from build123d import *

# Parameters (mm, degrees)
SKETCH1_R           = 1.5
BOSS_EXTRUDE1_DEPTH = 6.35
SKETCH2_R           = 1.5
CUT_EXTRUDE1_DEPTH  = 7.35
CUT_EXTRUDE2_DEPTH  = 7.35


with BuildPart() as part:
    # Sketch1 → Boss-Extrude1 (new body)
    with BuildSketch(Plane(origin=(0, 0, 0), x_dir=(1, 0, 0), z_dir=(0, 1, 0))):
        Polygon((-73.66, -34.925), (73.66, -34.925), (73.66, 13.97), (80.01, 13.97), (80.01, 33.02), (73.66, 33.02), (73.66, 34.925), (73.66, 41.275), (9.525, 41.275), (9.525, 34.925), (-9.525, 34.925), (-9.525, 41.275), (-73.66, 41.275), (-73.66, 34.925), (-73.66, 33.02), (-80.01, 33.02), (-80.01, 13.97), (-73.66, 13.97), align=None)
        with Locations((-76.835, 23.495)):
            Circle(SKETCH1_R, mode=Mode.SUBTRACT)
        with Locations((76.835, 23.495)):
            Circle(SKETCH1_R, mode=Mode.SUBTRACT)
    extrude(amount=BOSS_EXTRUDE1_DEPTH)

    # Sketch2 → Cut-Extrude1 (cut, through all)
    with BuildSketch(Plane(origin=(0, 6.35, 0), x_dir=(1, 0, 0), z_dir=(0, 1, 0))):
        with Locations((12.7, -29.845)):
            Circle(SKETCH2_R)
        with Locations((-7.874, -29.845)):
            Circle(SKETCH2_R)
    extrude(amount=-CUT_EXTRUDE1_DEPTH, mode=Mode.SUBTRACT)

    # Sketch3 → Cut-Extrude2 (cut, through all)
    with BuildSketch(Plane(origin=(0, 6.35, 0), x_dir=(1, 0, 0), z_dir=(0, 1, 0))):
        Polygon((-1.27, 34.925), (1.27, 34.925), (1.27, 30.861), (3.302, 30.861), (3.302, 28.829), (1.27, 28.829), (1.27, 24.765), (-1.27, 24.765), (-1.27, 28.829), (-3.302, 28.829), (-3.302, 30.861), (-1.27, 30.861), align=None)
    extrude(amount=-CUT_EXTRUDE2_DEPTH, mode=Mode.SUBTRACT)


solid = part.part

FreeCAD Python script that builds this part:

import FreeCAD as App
import Part
import Sketcher
Q = App.Units.Quantity

doc = App.newDocument("Part")
body = doc.addObject("PartDesign::Body", "Body")

sketch1 = body.newObject("Sketcher::SketchObject", "Sketch")
sketch1.AttachmentSupport = (doc.getObject("XZ_Plane"), [""])
sketch1.MapMode = "FlatFace"
sketch1.addGeometry(Part.LineSegment(App.Vector(-73.7, 34.9, 0), App.Vector(73.7, 34.9, 0)), False)
sketch1.addGeometry(Part.LineSegment(App.Vector(73.7, 34.9, 0), App.Vector(73.7, -14, 0)), False)
sketch1.addGeometry(Part.LineSegment(App.Vector(73.7, -14, 0), App.Vector(80, -14, 0)), False)
sketch1.addGeometry(Part.LineSegment(App.Vector(80, -14, 0), App.Vector(80, -33, 0)), False)
sketch1.addGeometry(Part.LineSegment(App.Vector(80, -33, 0), App.Vector(73.7, -33, 0)), False)
sketch1.addGeometry(Part.LineSegment(App.Vector(73.7, -33, 0), App.Vector(73.7, -41.3, 0)), False)
sketch1.addGeometry(Part.LineSegment(App.Vector(73.7, -41.3, 0), App.Vector(9.5, -41.3, 0)), False)
sketch1.addGeometry(Part.LineSegment(App.Vector(9.5, -41.3, 0), App.Vector(9.5, -34.9, 0)), False)
sketch1.addGeometry(Part.LineSegment(App.Vector(9.5, -34.9, 0), App.Vector(-9.5, -34.9, 0)), False)
sketch1.addGeometry(Part.LineSegment(App.Vector(-9.5, -34.9, 0), App.Vector(-9.5, -41.3, 0)), False)
sketch1.addGeometry(Part.LineSegment(App.Vector(-9.5, -41.3, 0), App.Vector(-73.7, -41.3, 0)), False)
sketch1.addGeometry(Part.LineSegment(App.Vector(-73.7, -41.3, 0), App.Vector(-73.7, -33, 0)), False)
sketch1.addGeometry(Part.LineSegment(App.Vector(-73.7, -33, 0), App.Vector(-80, -33, 0)), False)
sketch1.addGeometry(Part.LineSegment(App.Vector(-80, -33, 0), App.Vector(-80, -14, 0)), False)
sketch1.addGeometry(Part.LineSegment(App.Vector(-80, -14, 0), App.Vector(-73.7, -14, 0)), False)
sketch1.addGeometry(Part.LineSegment(App.Vector(-73.7, -14, 0), App.Vector(-73.7, 34.9, 0)), False)
sketch1.addGeometry(Part.Circle(App.Vector(-76.8, -23.5, 0), App.Vector(0, 0, 1), 1.5), False)
sketch1.addGeometry(Part.Circle(App.Vector(76.8, -23.5, 0), App.Vector(0, 0, 1), 1.5), False)
sketch1.addConstraint(Sketcher.Constraint("Coincident", 0, 2, 1, 1))
sketch1.addConstraint(Sketcher.Constraint("Coincident", 1, 2, 2, 1))
sketch1.addConstraint(Sketcher.Constraint("Coincident", 2, 2, 3, 1))
sketch1.addConstraint(Sketcher.Constraint("Coincident", 3, 2, 4, 1))
sketch1.addConstraint(Sketcher.Constraint("Coincident", 4, 2, 5, 1))
sketch1.addConstraint(Sketcher.Constraint("Coincident", 5, 2, 6, 1))
sketch1.addConstraint(Sketcher.Constraint("Coincident", 6, 2, 7, 1))
sketch1.addConstraint(Sketcher.Constraint("Coincident", 7, 2, 8, 1))
sketch1.addConstraint(Sketcher.Constraint("Coincident", 8, 2, 9, 1))
sketch1.addConstraint(Sketcher.Constraint("Coincident", 9, 2, 10, 1))
sketch1.addConstraint(Sketcher.Constraint("Coincident", 10, 2, 11, 1))
sketch1.addConstraint(Sketcher.Constraint("Coincident", 11, 2, 12, 1))
sketch1.addConstraint(Sketcher.Constraint("Coincident", 12, 2, 13, 1))
sketch1.addConstraint(Sketcher.Constraint("Coincident", 13, 2, 14, 1))
sketch1.addConstraint(Sketcher.Constraint("Coincident", 14, 2, 15, 1))
sketch1.addConstraint(Sketcher.Constraint("Coincident", 15, 2, 0, 1))
sketch1.addConstraint(Sketcher.Constraint("Horizontal", 0))
sketch1.addConstraint(Sketcher.Constraint("Vertical", 1))
sketch1.addConstraint(Sketcher.Constraint("Horizontal", 2))
sketch1.addConstraint(Sketcher.Constraint("Vertical", 3))
sketch1.addConstraint(Sketcher.Constraint("Horizontal", 4))
sketch1.addConstraint(Sketcher.Constraint("Vertical", 5))
sketch1.addConstraint(Sketcher.Constraint("Horizontal", 6))
sketch1.addConstraint(Sketcher.Constraint("Vertical", 7))
sketch1.addConstraint(Sketcher.Constraint("Horizontal", 8))
sketch1.addConstraint(Sketcher.Constraint("Vertical", 9))
sketch1.addConstraint(Sketcher.Constraint("Horizontal", 10))
sketch1.addConstraint(Sketcher.Constraint("Vertical", 11))
sketch1.addConstraint(Sketcher.Constraint("Horizontal", 12))
sketch1.addConstraint(Sketcher.Constraint("Vertical", 13))
sketch1.addConstraint(Sketcher.Constraint("Horizontal", 14))
sketch1.addConstraint(Sketcher.Constraint("Vertical", 15))
sketch1.addConstraint(Sketcher.Constraint("Equal", 16, 17))
sketch1.addConstraint(Sketcher.Constraint("Symmetric", 16, 3, 17, 3, -2))
sketch1.addConstraint(Sketcher.Constraint("Symmetric", 6, 2, 9, 2, -2))
sketch1.addConstraint(Sketcher.Constraint("Symmetric", 4, 2, 11, 2, -2))
sketch1.addConstraint(Sketcher.Constraint("Symmetric", 2, 2, 13, 2, -2))
sketch1.addConstraint(Sketcher.Constraint("Vertical", 1, 2, 4, 2))
sketch1.addConstraint(Sketcher.Constraint("Vertical", 11, 2, 14, 2))
sketch1.addConstraint(Sketcher.Constraint("Equal", 8, 3))
sketch1.addConstraint(Sketcher.Constraint("Equal", 14, 7))
sketch1.addConstraint(Sketcher.Constraint("DistanceX", 0, 1, 0, 2, Q("5.8 in")))
sketch1.addConstraint(Sketcher.Constraint("DistanceX", 2, 1, 2, 2, Q("0.25 in")))
sketch1.addConstraint(Sketcher.Constraint("DistanceX", 8, 2, 8, 1, Q("0.75 in")))
sketch1.addConstraint(Sketcher.Constraint("DistanceY", 3, 2, -1, 1, Q("1.3 in")))
sketch1.addConstraint(Sketcher.Constraint("DistanceY", 17, 3, 0, 2, Q("2.3 in")))
sketch1.addConstraint(Sketcher.Constraint("DistanceY", 5, 2, 17, 3, Q("0.7 in")))
sketch1.addConstraint(Sketcher.Constraint("Diameter", 16, Q("3 mm")))
sketch1.addConstraint(Sketcher.Constraint("DistanceY", 1, 2, 1, 1, Q("1.925 in")))
sketch1.addConstraint(Sketcher.Constraint("DistanceX", 16, 3, 17, 3, Q("6.05 in")))
pad1 = body.newObject("PartDesign::Pad", "Pad")
pad1.Profile = sketch1
pad1.Length = Q("0.25 in")
pad1.Reversed = True

sketch2 = body.newObject("Sketcher::SketchObject", "Sketch001")
sketch2.AttachmentSupport = (doc.getObject("XZ_Plane"), [""])
sketch2.MapMode = "FlatFace"
sketch2.AttachmentOffset = App.Placement(App.Vector(0, 0, -0.25 * 25.4), App.Rotation())
sketch2.addGeometry(Part.Circle(App.Vector(12.7, 29.8, 0), App.Vector(0, 0, 1), 1.5), False)
sketch2.addGeometry(Part.Circle(App.Vector(-7.9, 29.8, 0), App.Vector(0, 0, 1), 1.5), False)
sketch2.addConstraint(Sketcher.Constraint("Equal", 0, 1))
sketch2.addConstraint(Sketcher.Constraint("Horizontal", 0, 3, 1, 3))
sketch2.addConstraint(Sketcher.Constraint("DistanceX", -1, 1, 0, 3, Q("0.5 in")))
sketch2.addConstraint(Sketcher.Constraint("Diameter", 0, Q("3 mm")))
sketch2.addConstraint(Sketcher.Constraint("DistanceX", 1, 3, -1, 1, Q("0.31 in")))
sketch2.addConstraint(Sketcher.Constraint("DistanceY", -1, 1, 0, 3, Q("1.175 in")))
pocket1 = body.newObject("PartDesign::Pocket", "Pocket")
pocket1.Profile = sketch2
pocket1.Type = "ThroughAll"
pocket1.Reversed = True

sketch3 = body.newObject("Sketcher::SketchObject", "Sketch002")
sketch3.AttachmentSupport = (doc.getObject("XZ_Plane"), [""])
sketch3.MapMode = "FlatFace"
sketch3.AttachmentOffset = App.Placement(App.Vector(0, 0, -0.25 * 25.4), App.Rotation())
sketch3.addGeometry(Part.LineSegment(App.Vector(1.3, -34.9, 0), App.Vector(-1.3, -34.9, 0)), False)
sketch3.addGeometry(Part.LineSegment(App.Vector(-1.3, -34.9, 0), App.Vector(-1.3, -30.9, 0)), False)
sketch3.addGeometry(Part.LineSegment(App.Vector(-1.3, -30.9, 0), App.Vector(-3.3, -30.9, 0)), False)
sketch3.addGeometry(Part.LineSegment(App.Vector(-3.3, -30.9, 0), App.Vector(-3.3, -28.8, 0)), False)
sketch3.addGeometry(Part.LineSegment(App.Vector(-3.3, -28.8, 0), App.Vector(-1.3, -28.8, 0)), False)
sketch3.addGeometry(Part.LineSegment(App.Vector(-1.3, -28.8, 0), App.Vector(-1.3, -24.8, 0)), False)
sketch3.addGeometry(Part.LineSegment(App.Vector(-1.3, -24.8, 0), App.Vector(1.3, -24.8, 0)), False)
sketch3.addGeometry(Part.LineSegment(App.Vector(1.3, -24.8, 0), App.Vector(1.3, -28.8, 0)), False)
sketch3.addGeometry(Part.LineSegment(App.Vector(1.3, -28.8, 0), App.Vector(3.3, -28.8, 0)), False)
sketch3.addGeometry(Part.LineSegment(App.Vector(3.3, -28.8, 0), App.Vector(3.3, -30.9, 0)), False)
sketch3.addGeometry(Part.LineSegment(App.Vector(3.3, -30.9, 0), App.Vector(1.3, -30.9, 0)), False)
sketch3.addGeometry(Part.LineSegment(App.Vector(1.3, -30.9, 0), App.Vector(1.3, -34.9, 0)), False)
sketch3.addConstraint(Sketcher.Constraint("Coincident", 0, 2, 1, 1))
sketch3.addConstraint(Sketcher.Constraint("Coincident", 1, 2, 2, 1))
sketch3.addConstraint(Sketcher.Constraint("Coincident", 2, 2, 3, 1))
sketch3.addConstraint(Sketcher.Constraint("Coincident", 3, 2, 4, 1))
sketch3.addConstraint(Sketcher.Constraint("Coincident", 4, 2, 5, 1))
sketch3.addConstraint(Sketcher.Constraint("Coincident", 5, 2, 6, 1))
sketch3.addConstraint(Sketcher.Constraint("Coincident", 6, 2, 7, 1))
sketch3.addConstraint(Sketcher.Constraint("Coincident", 7, 2, 8, 1))
sketch3.addConstraint(Sketcher.Constraint("Coincident", 8, 2, 9, 1))
sketch3.addConstraint(Sketcher.Constraint("Coincident", 9, 2, 10, 1))
sketch3.addConstraint(Sketcher.Constraint("Coincident", 10, 2, 11, 1))
sketch3.addConstraint(Sketcher.Constraint("Coincident", 11, 2, 0, 1))
sketch3.addConstraint(Sketcher.Constraint("Horizontal", 0))
sketch3.addConstraint(Sketcher.Constraint("Vertical", 1))
sketch3.addConstraint(Sketcher.Constraint("Horizontal", 2))
sketch3.addConstraint(Sketcher.Constraint("Vertical", 3))
sketch3.addConstraint(Sketcher.Constraint("Horizontal", 4))
sketch3.addConstraint(Sketcher.Constraint("Vertical", 5))
sketch3.addConstraint(Sketcher.Constraint("Horizontal", 6))
sketch3.addConstraint(Sketcher.Constraint("Vertical", 7))
sketch3.addConstraint(Sketcher.Constraint("Horizontal", 8))
sketch3.addConstraint(Sketcher.Constraint("Vertical", 9))
sketch3.addConstraint(Sketcher.Constraint("Horizontal", 10))
sketch3.addConstraint(Sketcher.Constraint("Vertical", 11))
sketch3.addConstraint(Sketcher.Constraint("Symmetric", 4, 2, 7, 2, -2))
sketch3.addConstraint(Sketcher.Constraint("Symmetric", 2, 2, 9, 2, -2))
sketch3.addConstraint(Sketcher.Constraint("Vertical", 1, 2, 4, 2))
sketch3.addConstraint(Sketcher.Constraint("Vertical", 7, 2, 10, 2))
sketch3.addConstraint(Sketcher.Constraint("Equal", 10, 3))
sketch3.addConstraint(Sketcher.Constraint("Equal", 1, 5))
sketch3.addConstraint(Sketcher.Constraint("DistanceX", 0, 2, 0, 1, Q("0.1 in")))
sketch3.addConstraint(Sketcher.Constraint("DistanceX", 2, 2, 2, 1, Q("0.08 in")))
sketch3.addConstraint(Sketcher.Constraint("DistanceY", 1, 1, 1, 2, Q("0.16 in")))
sketch3.addConstraint(Sketcher.Constraint("DistanceY", 0, 2, -1, 1, Q("1.375 in")))
pocket2 = body.newObject("PartDesign::Pocket", "Pocket001")
pocket2.Profile = sketch3
pocket2.Type = "ThroughAll"
pocket2.Reversed = True

doc.recompute()
